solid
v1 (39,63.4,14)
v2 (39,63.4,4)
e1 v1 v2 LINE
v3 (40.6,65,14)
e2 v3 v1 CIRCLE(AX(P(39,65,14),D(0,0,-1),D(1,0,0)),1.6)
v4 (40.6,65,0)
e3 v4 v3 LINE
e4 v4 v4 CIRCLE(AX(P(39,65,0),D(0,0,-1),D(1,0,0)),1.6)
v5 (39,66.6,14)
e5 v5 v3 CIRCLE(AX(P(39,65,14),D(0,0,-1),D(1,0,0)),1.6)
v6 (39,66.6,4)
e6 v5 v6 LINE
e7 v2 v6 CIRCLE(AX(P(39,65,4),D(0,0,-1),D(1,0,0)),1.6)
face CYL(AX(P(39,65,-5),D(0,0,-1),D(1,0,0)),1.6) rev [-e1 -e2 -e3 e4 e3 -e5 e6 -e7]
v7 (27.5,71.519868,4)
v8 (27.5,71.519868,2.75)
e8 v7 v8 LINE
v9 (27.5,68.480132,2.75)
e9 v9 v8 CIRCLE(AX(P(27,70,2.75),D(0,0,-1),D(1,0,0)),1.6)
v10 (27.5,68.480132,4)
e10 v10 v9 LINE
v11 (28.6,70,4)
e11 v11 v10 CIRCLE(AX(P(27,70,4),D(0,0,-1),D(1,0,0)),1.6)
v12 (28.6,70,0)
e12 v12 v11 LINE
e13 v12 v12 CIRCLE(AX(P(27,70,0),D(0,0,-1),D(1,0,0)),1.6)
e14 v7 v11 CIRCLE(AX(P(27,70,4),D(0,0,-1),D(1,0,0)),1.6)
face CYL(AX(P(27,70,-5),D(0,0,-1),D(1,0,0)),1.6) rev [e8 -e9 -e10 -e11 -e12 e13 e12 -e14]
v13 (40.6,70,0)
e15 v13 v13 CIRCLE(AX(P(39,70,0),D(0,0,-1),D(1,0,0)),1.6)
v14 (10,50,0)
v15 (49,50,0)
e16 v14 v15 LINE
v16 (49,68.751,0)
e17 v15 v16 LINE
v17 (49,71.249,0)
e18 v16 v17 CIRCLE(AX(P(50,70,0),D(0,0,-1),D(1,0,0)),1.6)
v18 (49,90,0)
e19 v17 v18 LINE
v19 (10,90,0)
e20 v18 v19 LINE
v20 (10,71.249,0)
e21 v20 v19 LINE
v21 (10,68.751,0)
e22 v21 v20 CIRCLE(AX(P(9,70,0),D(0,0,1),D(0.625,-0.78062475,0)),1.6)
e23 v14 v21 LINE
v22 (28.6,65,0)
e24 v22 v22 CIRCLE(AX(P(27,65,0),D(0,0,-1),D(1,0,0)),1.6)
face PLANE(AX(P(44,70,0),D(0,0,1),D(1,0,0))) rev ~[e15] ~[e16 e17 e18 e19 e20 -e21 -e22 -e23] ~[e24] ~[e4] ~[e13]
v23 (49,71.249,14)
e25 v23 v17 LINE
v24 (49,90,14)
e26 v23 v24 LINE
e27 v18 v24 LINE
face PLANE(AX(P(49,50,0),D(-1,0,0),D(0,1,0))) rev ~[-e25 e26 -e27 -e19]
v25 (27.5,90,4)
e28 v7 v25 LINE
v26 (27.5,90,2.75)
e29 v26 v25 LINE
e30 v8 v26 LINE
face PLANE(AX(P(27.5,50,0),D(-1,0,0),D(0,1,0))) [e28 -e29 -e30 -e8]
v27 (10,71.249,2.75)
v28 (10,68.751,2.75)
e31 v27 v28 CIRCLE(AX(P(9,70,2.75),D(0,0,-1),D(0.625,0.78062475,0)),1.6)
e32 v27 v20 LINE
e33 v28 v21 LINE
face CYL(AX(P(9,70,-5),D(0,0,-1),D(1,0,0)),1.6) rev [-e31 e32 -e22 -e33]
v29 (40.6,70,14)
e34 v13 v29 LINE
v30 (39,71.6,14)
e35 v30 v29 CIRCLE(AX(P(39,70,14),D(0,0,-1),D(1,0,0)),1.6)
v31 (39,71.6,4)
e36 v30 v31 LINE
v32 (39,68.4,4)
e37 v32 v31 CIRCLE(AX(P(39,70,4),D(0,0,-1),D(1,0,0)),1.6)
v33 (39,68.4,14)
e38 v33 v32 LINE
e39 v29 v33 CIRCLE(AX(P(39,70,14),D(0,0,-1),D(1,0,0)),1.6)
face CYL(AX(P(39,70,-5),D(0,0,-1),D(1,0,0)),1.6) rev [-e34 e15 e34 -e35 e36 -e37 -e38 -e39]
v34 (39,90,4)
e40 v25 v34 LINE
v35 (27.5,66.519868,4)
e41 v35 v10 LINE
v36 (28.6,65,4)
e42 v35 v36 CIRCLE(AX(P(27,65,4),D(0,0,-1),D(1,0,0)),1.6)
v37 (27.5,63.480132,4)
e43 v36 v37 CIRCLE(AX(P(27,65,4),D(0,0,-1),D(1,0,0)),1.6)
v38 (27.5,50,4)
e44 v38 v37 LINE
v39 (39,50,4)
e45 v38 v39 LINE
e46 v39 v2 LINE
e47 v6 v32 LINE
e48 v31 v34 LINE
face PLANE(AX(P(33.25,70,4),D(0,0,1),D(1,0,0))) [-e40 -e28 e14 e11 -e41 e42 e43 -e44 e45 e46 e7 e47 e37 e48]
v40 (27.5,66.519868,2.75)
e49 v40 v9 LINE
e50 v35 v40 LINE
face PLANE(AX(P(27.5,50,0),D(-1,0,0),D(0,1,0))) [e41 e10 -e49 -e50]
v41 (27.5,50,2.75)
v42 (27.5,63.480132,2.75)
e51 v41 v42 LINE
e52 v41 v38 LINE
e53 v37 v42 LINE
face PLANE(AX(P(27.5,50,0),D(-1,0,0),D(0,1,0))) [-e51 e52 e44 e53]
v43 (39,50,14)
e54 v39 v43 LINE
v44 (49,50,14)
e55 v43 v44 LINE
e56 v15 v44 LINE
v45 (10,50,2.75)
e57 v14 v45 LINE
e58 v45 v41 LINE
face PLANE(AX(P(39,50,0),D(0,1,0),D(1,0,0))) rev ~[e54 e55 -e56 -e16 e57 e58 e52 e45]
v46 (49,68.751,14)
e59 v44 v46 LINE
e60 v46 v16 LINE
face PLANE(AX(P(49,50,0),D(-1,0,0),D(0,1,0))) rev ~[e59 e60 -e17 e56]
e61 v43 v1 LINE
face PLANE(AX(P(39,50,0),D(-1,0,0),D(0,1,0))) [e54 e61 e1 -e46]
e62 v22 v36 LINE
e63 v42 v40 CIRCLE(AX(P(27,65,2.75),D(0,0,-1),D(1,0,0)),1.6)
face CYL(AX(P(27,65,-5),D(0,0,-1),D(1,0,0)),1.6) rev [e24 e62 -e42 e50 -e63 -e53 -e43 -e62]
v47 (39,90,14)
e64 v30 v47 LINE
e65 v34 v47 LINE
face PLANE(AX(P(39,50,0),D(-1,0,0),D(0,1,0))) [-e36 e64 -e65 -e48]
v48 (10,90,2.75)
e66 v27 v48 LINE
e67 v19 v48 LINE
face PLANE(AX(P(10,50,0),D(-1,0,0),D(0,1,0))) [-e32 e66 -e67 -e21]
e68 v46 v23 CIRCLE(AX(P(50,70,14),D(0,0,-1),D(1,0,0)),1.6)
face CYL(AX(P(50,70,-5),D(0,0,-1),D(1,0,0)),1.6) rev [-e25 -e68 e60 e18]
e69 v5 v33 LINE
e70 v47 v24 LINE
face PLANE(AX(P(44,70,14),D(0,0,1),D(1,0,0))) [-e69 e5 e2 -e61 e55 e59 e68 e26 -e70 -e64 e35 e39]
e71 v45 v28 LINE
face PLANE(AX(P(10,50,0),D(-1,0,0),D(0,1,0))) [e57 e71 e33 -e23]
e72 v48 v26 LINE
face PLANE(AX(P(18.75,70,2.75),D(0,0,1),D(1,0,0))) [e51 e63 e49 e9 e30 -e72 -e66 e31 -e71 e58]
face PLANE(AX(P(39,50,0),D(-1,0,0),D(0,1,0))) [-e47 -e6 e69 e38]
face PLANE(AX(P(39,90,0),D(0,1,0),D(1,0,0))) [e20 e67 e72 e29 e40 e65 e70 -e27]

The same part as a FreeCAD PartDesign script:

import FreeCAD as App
import Part
import Sketcher

V = App.Vector
Q = App.Units.Quantity


def add_polygon(sketch, points):
    """Adds a closed chain of lines whose ends are joined by coincident constraints."""
    first, n = sketch.GeometryCount, len(points)
    for a, b in zip(points, points[1:] + points[:1]):
        sketch.addGeometry(Part.LineSegment(App.Vector(*a, 0), App.Vector(*b, 0)), False)
    for i in range(n):
        sketch.addConstraint(Sketcher.Constraint("Coincident", first + i, 2, first + (i + 1) % n, 1))

doc = App.newDocument("Part")
body = doc.addObject("PartDesign::Body", "Body")

# Sketch on XY plane
sketch1 = body.newObject("Sketcher::SketchObject", "Sketch")
sketch1.AttachmentSupport = (doc.getObject("XY_Plane"), [""])
sketch1.MapMode = "FlatFace"
sketch1.AttachmentOffset = App.Placement(V(0, 0, -5), App.Rotation())
sketch1.addGeometry(Part.Circle(V(50, 70, 0), V(0, 0, 1), 1.6), False)
sketch1.addConstraint(Sketcher.Constraint("Diameter", 0, Q("3.2 mm")))
sketch1.addConstraint(Sketcher.Constraint("DistanceX", -1, 1, 0, 3, Q("50 mm")))
sketch1.addConstraint(Sketcher.Constraint("DistanceY", -1, 1, 0, 3, Q("70 mm")))
pad1 = body.newObject("PartDesign::Pad", "Pad")
pad1.Profile = sketch1
pad1.Length = 20
body2 = doc.addObject("PartDesign::Body", "Body001")

# Sketch on XY plane
sketch2 = body2.newObject("Sketcher::SketchObject", "Sketch001")
sketch2.AttachmentSupport = (doc.getObject("XY_Plane001"), [""])
sketch2.MapMode = "FlatFace"
sketch2.AttachmentOffset = App.Placement(V(0, 0, -5), App.Rotation())
sketch2.addGeometry(Part.Circle(V(39, 70, 0), V(0, 0, 1), 1.6), False)
sketch2.addConstraint(Sketcher.Constraint("Diameter", 0, Q("3.2 mm")))
sketch2.addConstraint(Sketcher.Constraint("DistanceX", -1, 1, 0, 3, Q("39 mm")))
sketch2.addConstraint(Sketcher.Constraint("DistanceY", -1, 1, 0, 3, Q("70 mm")))
pad2 = body2.newObject("PartDesign::Pad", "Pad001")
pad2.Profile = sketch2
pad2.Length = 20
body3 = doc.addObject("PartDesign::Body", "Body002")

# Sketch on XY plane
sketch3 = body3.newObject("Sketcher::SketchObject", "Sketch002")
sketch3.AttachmentSupport = (doc.getObject("XY_Plane002"), [""])
sketch3.MapMode = "FlatFace"
sketch3.AttachmentOffset = App.Placement(V(0, 0, -5), App.Rotation())
sketch3.addGeometry(Part.Circle(V(39, 65, 0), V(0, 0, 1), 1.6), False)
sketch3.addConstraint(Sketcher.Constraint("Diameter", 0, Q("3.2 mm")))
sketch3.addConstraint(Sketcher.Constraint("DistanceX", -1, 1, 0, 3, Q("39 mm")))
sketch3.addConstraint(Sketcher.Constraint("DistanceY", -1, 1, 0, 3, Q("65 mm")))
pad3 = body3.newObject("PartDesign::Pad", "Pad002")
pad3.Profile = sketch3
pad3.Length = 20
body4 = doc.addObject("PartDesign::Body", "Body003")

# Sketch on XY plane
sketch4 = body4.newObject("Sketcher::SketchObject", "Sketch003")
sketch4.AttachmentSupport = (doc.getObject("XY_Plane003"), [""])
sketch4.MapMode = "FlatFace"
sketch4.AttachmentOffset = App.Placement(V(0, 0, -5), App.Rotation())
sketch4.addGeometry(Part.Circle(V(27, 65, 0), V(0, 0, 1), 1.6), False)
sketch4.addConstraint(Sketcher.Constraint("Diameter", 0, Q("3.2 mm")))
sketch4.addConstraint(Sketcher.Constraint("DistanceX", -1, 1, 0, 3, Q("27 mm")))
sketch4.addConstraint(Sketcher.Constraint("DistanceY", -1, 1, 0, 3, Q("65 mm")))
pad4 = body4.newObject("PartDesign::Pad", "Pad003")
pad4.Profile = sketch4
pad4.Length = 10
body5 = doc.addObject("PartDesign::Body", "Body004")

# Sketch on XY plane
sketch5 = body5.newObject("Sketcher::SketchObject", "Sketch004")
sketch5.AttachmentSupport = (doc.getObject("XY_Plane004"), [""])
sketch5.MapMode = "FlatFace"
sketch5.AttachmentOffset = App.Placement(V(0, 0, -5), App.Rotation())
sketch5.addGeometry(Part.Circle(V(27, 70, 0), V(0, 0, 1), 1.6), False)
sketch5.addConstraint(Sketcher.Constraint("Diameter", 0, Q("3.2 mm")))
sketch5.addConstraint(Sketcher.Constraint("DistanceX", -1, 1, 0, 3, Q("27 mm")))
sketch5.addConstraint(Sketcher.Constraint("DistanceY", -1, 1, 0, 3, Q("70 mm")))
pad5 = body5.newObject("PartDesign::Pad", "Pad004")
pad5.Profile = sketch5
pad5.Length = 10
body6 = doc.addObject("PartDesign::Body", "Body005")

# Sketch on XY plane
sketch6 = body6.newObject("Sketcher::SketchObject", "Sketch005")
sketch6.AttachmentSupport = (doc.getObject("XY_Plane005"), [""])
sketch6.MapMode = "FlatFace"
sketch6.AttachmentOffset = App.Placement(V(0, 0, -5), App.Rotation())
sketch6.addGeometry(Part.Circle(V(9, 70, 0), V(0, 0, 1), 1.6), False)
sketch6.addConstraint(Sketcher.Constraint("Diameter", 0, Q("3.2 mm")))
sketch6.addConstraint(Sketcher.Constraint("DistanceX", -1, 1, 0, 3, Q("9 mm")))
sketch6.addConstraint(Sketcher.Constraint("DistanceY", -1, 1, 0, 3, Q("70 mm")))
pad6 = body6.newObject("PartDesign::Pad", "Pad005")
pad6.Profile = sketch6
pad6.Length = 10
body7 = doc.addObject("PartDesign::Body", "Body006")

# Sketch on XY plane
sketch7 = body7.newObject("Sketcher::SketchObject", "Sketch006")
sketch7.AttachmentSupport = (doc.getObject("XY_Plane006"), [""])
sketch7.MapMode = "FlatFace"
add_polygon(sketch7, [(28, 90), (28, 50), (39, 50), (39, 90)])  # lines 0-3
sketch7.addConstraint(Sketcher.Constraint("Vertical", 0))
sketch7.addConstraint(Sketcher.Constraint("Horizontal", 1))
sketch7.addConstraint(Sketcher.Constraint("Vertical", 2))
sketch7.addConstraint(Sketcher.Constraint("Horizontal", 3))
sketch7.addConstraint(Sketcher.Constraint("DistanceY", 0, 2, 0, 1, Q("40 mm")))
sketch7.addConstraint(Sketcher.Constraint("DistanceX", 1, 1, 1, 2, Q("11.5 mm")))
sketch7.addConstraint(Sketcher.Constraint("DistanceY", -1, 1, 0, 2, Q("50 mm")))
sketch7.addConstraint(Sketcher.Constraint("DistanceX", -1, 1, 1, 2, Q("39 mm")))
pad7 = body7.newObject("PartDesign::Pad", "Pad006")
pad7.Profile = sketch7
pad7.Length = 4
body8 = doc.addObject("PartDesign::Body", "Body007")

# Sketch on XY plane
sketch8 = body8.newObject("Sketcher::SketchObject", "Sketch007")
sketch8.AttachmentSupport = (doc.getObject("XY_Plane007"), [""])
sketch8.MapMode = "FlatFace"
add_polygon(sketch8, [(39, 90), (39, 50), (49, 50), (49, 90)])  # lines 0-3
sketch8.addConstraint(Sketcher.Constraint("Vertical", 0))
sketch8.addConstraint(Sketcher.Constraint("Horizontal", 1))
sketch8.addConstraint(Sketcher.Constraint("Vertical", 2))
sketch8.addConstraint(Sketcher.Constraint("Horizontal", 3))
sketch8.addConstraint(Sketcher.Constraint("DistanceX", 1, 1, 1, 2, Q("10 mm")))
sketch8.addConstraint(Sketcher.Constraint("DistanceY", 0, 2, 0, 1, Q("40 mm")))
sketch8.addConstraint(Sketcher.Constraint("DistanceX", -1, 1, 0, 2, Q("39 mm")))
sketch8.addConstraint(Sketcher.Constraint("DistanceY", -1, 1, 0, 2, Q("50 mm")))
pad8 = body8.newObject("PartDesign::Pad", "Pad007")
pad8.Profile = sketch8
pad8.Length = 14
body9 = doc.addObject("PartDesign::Body", "Body008")

# Sketch on XY plane
sketch9 = body9.newObject("Sketcher::SketchObject", "Sketch008")
sketch9.AttachmentSupport = (doc.getObject("XY_Plane008"), [""])
sketch9.MapMode = "FlatFace"
add_polygon(sketch9, [(10, 90), (10, 50), (28, 50), (28, 90)])  # lines 0-3
sketch9.addConstraint(Sketcher.Constraint("Vertical", 0))
sketch9.addConstraint(Sketcher.Constraint("Horizontal", 1))
sketch9.addConstraint(Sketcher.Constraint("Vertical", 2))
sketch9.addConstraint(Sketcher.Constraint("Horizontal", 3))
sketch9.addConstraint(Sketcher.Constraint("DistanceY", 0, 2, 0, 1, Q("40 mm")))
sketch9.addConstraint(Sketcher.Constraint("DistanceX", 1, 1, 1, 2, Q("17.5 mm")))
sketch9.addConstraint(Sketcher.Constraint("DistanceX", -1, 1, 0, 2, Q("10 mm")))
sketch9.addConstraint(Sketcher.Constraint("DistanceY", -1, 1, 0, 2, Q("50 mm")))
pad9 = body9.newObject("PartDesign::Pad", "Pad008")
pad9.Profile = sketch9
pad9.Length = 2.75
doc.recompute()

boolean = body9.newObject("PartDesign::Boolean", "Boolean")
boolean.Type = "Fuse"
boolean.addObjects([body7])
doc.recompute()

boolean2 = body9.newObject("PartDesign::Boolean", "Boolean001")
boolean2.Type = "Fuse"
boolean2.addObjects([body8])
doc.recompute()

boolean3 = body9.newObject("PartDesign::Boolean", "Boolean002")
boolean3.Type = "Cut"
boolean3.addObjects([body6])
doc.recompute()

boolean4 = body9.newObject("PartDesign::Boolean", "Boolean003")
boolean4.Type = "Cut"
boolean4.addObjects([body5])
doc.recompute()

boolean5 = body9.newObject("PartDesign::Boolean", "Boolean004")
boolean5.Type = "Cut"
boolean5.addObjects([body4])
doc.recompute()

boolean6 = body9.newObject("PartDesign::Boolean", "Boolean005")
boolean6.Type = "Cut"
boolean6.addObjects([body3])
doc.recompute()

boolean7 = body9.newObject("PartDesign::Boolean", "Boolean006")
boolean7.Type = "Cut"
boolean7.addObjects([body2])
doc.recompute()

boolean8 = body9.newObject("PartDesign::Boolean", "Boolean007")
boolean8.Type = "Cut"
boolean8.addObjects([body])

doc.recompute()
